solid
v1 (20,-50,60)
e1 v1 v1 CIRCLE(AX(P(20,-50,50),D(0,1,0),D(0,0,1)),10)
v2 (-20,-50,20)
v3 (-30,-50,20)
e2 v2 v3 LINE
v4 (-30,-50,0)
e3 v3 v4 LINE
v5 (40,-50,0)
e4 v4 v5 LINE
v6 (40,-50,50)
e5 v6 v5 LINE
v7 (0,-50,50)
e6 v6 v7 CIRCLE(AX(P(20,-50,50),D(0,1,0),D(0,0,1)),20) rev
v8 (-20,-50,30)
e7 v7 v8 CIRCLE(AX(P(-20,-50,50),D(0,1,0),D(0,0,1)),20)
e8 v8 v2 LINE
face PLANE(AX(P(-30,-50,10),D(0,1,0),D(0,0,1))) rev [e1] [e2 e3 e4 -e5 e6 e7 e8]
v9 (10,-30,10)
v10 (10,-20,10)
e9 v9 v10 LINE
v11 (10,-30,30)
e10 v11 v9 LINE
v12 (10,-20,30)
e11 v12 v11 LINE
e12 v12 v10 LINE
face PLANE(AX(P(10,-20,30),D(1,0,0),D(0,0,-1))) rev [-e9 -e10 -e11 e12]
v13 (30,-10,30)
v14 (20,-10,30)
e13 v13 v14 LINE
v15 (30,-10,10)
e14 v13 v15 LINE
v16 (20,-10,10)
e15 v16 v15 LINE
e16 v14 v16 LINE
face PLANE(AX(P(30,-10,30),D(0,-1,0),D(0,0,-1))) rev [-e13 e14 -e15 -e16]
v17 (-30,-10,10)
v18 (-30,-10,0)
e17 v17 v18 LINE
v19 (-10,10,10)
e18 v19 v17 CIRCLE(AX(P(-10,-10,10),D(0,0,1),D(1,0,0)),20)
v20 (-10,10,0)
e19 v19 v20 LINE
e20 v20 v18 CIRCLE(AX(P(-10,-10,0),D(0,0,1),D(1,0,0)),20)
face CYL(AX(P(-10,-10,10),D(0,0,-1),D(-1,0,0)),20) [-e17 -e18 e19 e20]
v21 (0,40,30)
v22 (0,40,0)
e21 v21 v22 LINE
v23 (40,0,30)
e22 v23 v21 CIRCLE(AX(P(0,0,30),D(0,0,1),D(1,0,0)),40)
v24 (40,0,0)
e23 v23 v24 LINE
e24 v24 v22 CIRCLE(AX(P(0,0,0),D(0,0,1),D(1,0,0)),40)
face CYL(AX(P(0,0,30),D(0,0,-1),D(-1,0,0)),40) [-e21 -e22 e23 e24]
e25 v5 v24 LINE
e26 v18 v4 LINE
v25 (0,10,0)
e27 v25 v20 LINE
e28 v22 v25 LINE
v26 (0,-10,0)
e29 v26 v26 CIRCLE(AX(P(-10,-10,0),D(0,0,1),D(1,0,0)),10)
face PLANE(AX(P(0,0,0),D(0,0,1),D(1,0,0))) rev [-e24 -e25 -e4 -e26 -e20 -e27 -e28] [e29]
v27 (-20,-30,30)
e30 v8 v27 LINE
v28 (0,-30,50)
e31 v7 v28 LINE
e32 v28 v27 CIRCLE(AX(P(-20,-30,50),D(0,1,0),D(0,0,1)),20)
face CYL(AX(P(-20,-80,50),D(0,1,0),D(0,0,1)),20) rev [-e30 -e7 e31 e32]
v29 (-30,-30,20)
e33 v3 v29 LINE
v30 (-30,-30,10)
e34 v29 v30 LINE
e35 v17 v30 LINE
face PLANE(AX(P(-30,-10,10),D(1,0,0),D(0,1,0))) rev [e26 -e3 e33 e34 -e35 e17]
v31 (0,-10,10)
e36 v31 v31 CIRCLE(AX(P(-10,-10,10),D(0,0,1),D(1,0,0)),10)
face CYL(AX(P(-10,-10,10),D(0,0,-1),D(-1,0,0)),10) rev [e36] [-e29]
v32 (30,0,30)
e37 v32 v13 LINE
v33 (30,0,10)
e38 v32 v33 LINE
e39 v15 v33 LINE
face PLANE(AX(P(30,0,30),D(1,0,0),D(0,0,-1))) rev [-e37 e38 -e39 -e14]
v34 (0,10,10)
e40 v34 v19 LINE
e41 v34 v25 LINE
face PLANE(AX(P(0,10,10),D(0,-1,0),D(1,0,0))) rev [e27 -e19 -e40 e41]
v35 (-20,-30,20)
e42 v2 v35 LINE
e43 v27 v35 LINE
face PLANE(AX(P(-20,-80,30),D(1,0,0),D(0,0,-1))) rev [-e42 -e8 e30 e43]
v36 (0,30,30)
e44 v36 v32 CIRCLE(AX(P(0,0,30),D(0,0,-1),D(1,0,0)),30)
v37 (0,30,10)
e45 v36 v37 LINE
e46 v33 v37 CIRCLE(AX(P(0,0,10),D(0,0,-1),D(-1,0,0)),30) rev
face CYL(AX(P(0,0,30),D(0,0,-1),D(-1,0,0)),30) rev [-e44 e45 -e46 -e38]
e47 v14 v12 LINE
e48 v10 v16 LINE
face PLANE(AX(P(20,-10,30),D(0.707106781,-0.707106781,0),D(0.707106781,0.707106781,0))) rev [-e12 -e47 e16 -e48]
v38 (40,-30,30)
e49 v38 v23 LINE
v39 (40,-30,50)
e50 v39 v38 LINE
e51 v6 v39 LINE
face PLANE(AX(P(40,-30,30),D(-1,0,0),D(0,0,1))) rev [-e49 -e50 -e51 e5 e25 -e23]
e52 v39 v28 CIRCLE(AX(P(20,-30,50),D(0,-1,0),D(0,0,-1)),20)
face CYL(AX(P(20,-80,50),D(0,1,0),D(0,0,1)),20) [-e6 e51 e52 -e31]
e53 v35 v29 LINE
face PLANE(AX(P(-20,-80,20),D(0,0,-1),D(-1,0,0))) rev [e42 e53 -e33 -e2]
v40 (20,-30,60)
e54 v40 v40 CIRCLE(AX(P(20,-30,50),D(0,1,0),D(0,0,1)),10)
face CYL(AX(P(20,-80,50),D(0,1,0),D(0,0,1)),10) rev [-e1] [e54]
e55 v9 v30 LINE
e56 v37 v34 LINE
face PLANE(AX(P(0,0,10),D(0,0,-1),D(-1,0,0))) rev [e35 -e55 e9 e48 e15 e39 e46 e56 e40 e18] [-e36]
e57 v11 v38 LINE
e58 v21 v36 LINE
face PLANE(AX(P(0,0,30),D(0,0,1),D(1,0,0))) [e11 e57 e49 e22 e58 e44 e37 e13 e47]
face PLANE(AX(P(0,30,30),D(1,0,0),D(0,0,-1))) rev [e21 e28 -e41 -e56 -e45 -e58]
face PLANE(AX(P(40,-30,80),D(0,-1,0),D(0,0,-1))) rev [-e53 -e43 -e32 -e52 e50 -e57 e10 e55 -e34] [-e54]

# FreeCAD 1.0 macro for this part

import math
import FreeCAD as App
import Part
import Sketcher


def add_polygon(sketch, points):
    """Adds a closed chain of lines whose ends are joined by coincident constraints."""
    first, n = sketch.GeometryCount, len(points)
    for a, b in zip(points, points[1:] + points[:1]):
        sketch.addGeometry(Part.LineSegment(App.Vector(*a, 0), App.Vector(*b, 0)), False)
    for i in range(n):
        sketch.addConstraint(Sketcher.Constraint("Coincident", first + i, 2, first + (i + 1) % n, 1))

doc = App.newDocument("Part")
body = doc.addObject("PartDesign::Body", "Body")

sketch1 = body.newObject("Sketcher::SketchObject", "Sketch")
sketch1.AttachmentSupport = (doc.getObject("XY_Plane"), [""])
sketch1.MapMode = "FlatFace"
sketch1.addGeometry([
    Part.LineSegment(App.Vector(0, 40, 0), App.Vector(0, 30, 0)),
    Part.ArcOfCircle(Part.Circle(App.Vector(0, 0, 0), App.Vector(0, 0, 1), 30), math.radians(0), math.radians(90)),
    Part.LineSegment(App.Vector(30, 0, 0), App.Vector(30, -10, 0)),
    Part.LineSegment(App.Vector(30, -10, 0), App.Vector(20, -10, 0)),
    Part.LineSegment(App.Vector(20, -10, 0), App.Vector(10, -20, 0)),
    Part.LineSegment(App.Vector(10, -20, 0), App.Vector(10, -30, 0)),
    Part.LineSegment(App.Vector(10, -30, 0), App.Vector(40, -30, 0)),
    Part.LineSegment(App.Vector(40, -30, 0), App.Vector(40, 0, 0)),
    Part.ArcOfCircle(Part.Circle(App.Vector(0, 0, 0), App.Vector(0, 0, 1), 40), math.radians(0), math.radians(90)),
], False)
sketch1.addConstraint([
    Sketcher.Constraint("Coincident", 0, 2, 1, 2),
    Sketcher.Constraint("Tangent", 1, 1, 2, 1),
    Sketcher.Constraint("Coincident", 2, 2, 3, 1),
    Sketcher.Constraint("Coincident", 3, 2, 4, 1),
    Sketcher.Constraint("Coincident", 4, 2, 5, 1),
    Sketcher.Constraint("Coincident", 5, 2, 6, 1),
    Sketcher.Constraint("Coincident", 6, 2, 7, 1),
    Sketcher.Constraint("Tangent", 7, 2, 8, 1),
    Sketcher.Constraint("Coincident", 8, 2, 0, 1),
    Sketcher.Constraint("Vertical", 0),
    Sketcher.Constraint("Vertical", 2),
    Sketcher.Constraint("Horizontal", 3),
    Sketcher.Constraint("Vertical", 5),
    Sketcher.Constraint("Horizontal", 6),
    Sketcher.Constraint("Vertical", 7),
    Sketcher.Constraint("Coincident", 1, 3, -1, 1),
    Sketcher.Constraint("Coincident", 8, 3, -1, 1),
    Sketcher.Constraint("PointOnObject", 0, 2, -2),
    Sketcher.Constraint("Equal", 3, 0),
    Sketcher.Constraint("Equal", 0, 2),
    Sketcher.Constraint("Equal", 2, 5),
    Sketcher.Constraint("Equal", 6, 7),
    Sketcher.Constraint("Radius", 1, 30.0),
    Sketcher.Constraint("Radius", 8, 40.0),
    Sketcher.Constraint("DistanceX", 6, 1, 6, 2, 30.0),
])
pad1 = body.newObject("PartDesign::Pad", "Pad")
pad1.Profile = sketch1
pad1.Length = 30

sketch2 = body.newObject("Sketcher::SketchObject", "Sketch001")
sketch2.AttachmentSupport = (doc.getObject("XY_Plane"), [""])
sketch2.MapMode = "FlatFace"
sketch2.addGeometry([
    Part.LineSegment(App.Vector(0, 40, 0), App.Vector(0, 10, 0)),
    Part.LineSegment(App.Vector(0, 10, 0), App.Vector(-10, 10, 0)),
    Part.ArcOfCircle(Part.Circle(App.Vector(-10, -10, 0), App.Vector(0, 0, 1), 20), math.radians(90), math.radians(180)),
    Part.LineSegment(App.Vector(-30, -10, 0), App.Vector(-30, -50, 0)),
    Part.LineSegment(App.Vector(-30, -50, 0), App.Vector(40, -50, 0)),
    Part.LineSegment(App.Vector(40, -50, 0), App.Vector(40, 0, 0)),
    Part.ArcOfCircle(Part.Circle(App.Vector(0, 0, 0), App.Vector(0, 0, 1), 40), math.radians(0), math.radians(90)),
    Part.Circle(App.Vector(-10, -10, 0), App.Vector(0, 0, 1), 10),
], False)
sketch2.addConstraint([
    Sketcher.Constraint("Coincident", 0, 2, 1, 1),
    Sketcher.Constraint("Tangent", 1, 2, 2, 1),
    Sketcher.Constraint("Tangent", 2, 2, 3, 1),
    Sketcher.Constraint("Coincident", 3, 2, 4, 1),
    Sketcher.Constraint("Coincident", 4, 2, 5, 1),
    Sketcher.Constraint("Tangent", 5, 2, 6, 1),
    Sketcher.Constraint("Coincident", 6, 2, 0, 1),
    Sketcher.Constraint("Vertical", 0),
    Sketcher.Constraint("Horizontal", 1),
    Sketcher.Constraint("Vertical", 3),
    Sketcher.Constraint("Horizontal", 4),
    Sketcher.Constraint("Vertical", 5),
    Sketcher.Constraint("Coincident", 6, 3, -1, 1),
    Sketcher.Constraint("Coincident", 7, 3, 2, 3),
    Sketcher.Constraint("PointOnObject", 0, 2, -2),
    Sketcher.Constraint("Diameter", 7, 20.0),
    Sketcher.Constraint("Radius", 2, 20.0),
    Sketcher.Constraint("Radius", 6, 40.0),
    Sketcher.Constraint("DistanceX", 1, 2, 1, 1, 10.0),
    Sketcher.Constraint("DistanceY", 0, 2, 0, 1, 30.0),
    Sketcher.Constraint("DistanceY", 3, 2, 3, 1, 40.0),
])
pad2 = body.newObject("PartDesign::Pad", "Pad001")
pad2.Profile = sketch2
pad2.Length = 10

sketch3 = body.newObject("Sketcher::SketchObject", "Sketch002")
sketch3.AttachmentSupport = (doc.getObject("XY_Plane"), [""])
sketch3.MapMode = "FlatFace"
sketch3.AttachmentOffset = App.Placement(App.Vector(0, 0, 10), App.Rotation())
add_polygon(sketch3, [(-30, -30), (-30, -50), (40, -50), (40, -30)])
sketch3.addConstraint([
    Sketcher.Constraint("Vertical", 0),
    Sketcher.Constraint("Horizontal", 1),
    Sketcher.Constraint("Vertical", 2),
    Sketcher.Constraint("Horizontal", 3),
    Sketcher.Constraint("DistanceX", 1, 1, 1, 2, 70.0),
    Sketcher.Constraint("DistanceY", 0, 2, 0, 1, 20.0),
    Sketcher.Constraint("DistanceX", 0, 2, -1, 1, 30.0),
    Sketcher.Constraint("DistanceY", 0, 2, -1, 1, 50.0),
])
pad3 = body.newObject("PartDesign::Pad", "Pad002")
pad3.Profile = sketch3
pad3.Length = 70

sketch4 = body.newObject("Sketcher::SketchObject", "Sketch003")
sketch4.AttachmentSupport = (doc.getObject("XZ_Plane"), [""])
sketch4.MapMode = "FlatFace"
sketch4.AttachmentOffset = App.Placement(App.Vector(0, 0, 30), App.Rotation())
sketch4.addGeometry([
    Part.LineSegment(App.Vector(-20, 30, 0), App.Vector(-20, 20, 0)),
    Part.LineSegment(App.Vector(-20, 20, 0), App.Vector(-30, 20, 0)),
    Part.LineSegment(App.Vector(-30, 20, 0), App.Vector(-30, 80, 0)),
    Part.LineSegment(App.Vector(-30, 80, 0), App.Vector(40, 80, 0)),
    Part.LineSegment(App.Vector(40, 80, 0), App.Vector(40, 50, 0)),
    Part.ArcOfCircle(Part.Circle(App.Vector(20, 50, 0), App.Vector(0, 0, 1), 20), math.radians(0), math.radians(180)),
    Part.ArcOfCircle(Part.Circle(App.Vector(-20, 50, 0), App.Vector(0, 0, 1), 20), math.radians(-90), math.radians(0)),
], False)
sketch4.addConstraint([
    Sketcher.Constraint("Coincident", 0, 2, 1, 1),
    Sketcher.Constraint("Coincident", 1, 2, 2, 1),
    Sketcher.Constraint("Coincident", 2, 2, 3, 1),
    Sketcher.Constraint("Coincident", 3, 2, 4, 1),
    Sketcher.Constraint("Tangent", 4, 2, 5, 1),
    Sketcher.Constraint("Tangent", 5, 2, 6, 2),
    Sketcher.Constraint("Coincident", 6, 1, 0, 1),
    Sketcher.Constraint("Vertical", 0),
    Sketcher.Constraint("Horizontal", 1),
    Sketcher.Constraint("Vertical", 2),
    Sketcher.Constraint("Horizontal", 3),
    Sketcher.Constraint("Vertical", 4),
    Sketcher.Constraint("Equal", 5, 6),
    Sketcher.Constraint("Symmetric", 5, 3, 6, 3, -2),
    Sketcher.Constraint("Vertical", 6, 3, 0, 2),
    Sketcher.Constraint("Equal", 1, 0),
    Sketcher.Constraint("Radius", 5, 20.0),
    Sketcher.Constraint("DistanceX", 1, 2, 1, 1, 10.0),
    Sketcher.Constraint("DistanceY", 2, 1, 2, 2, 60.0),
    Sketcher.Constraint("DistanceY", -1, 1, 5, 3, 50.0),
])
pocket1 = body.newObject("PartDesign::Pocket", "Pocket")
pocket1.Profile = sketch4
pocket1.Length = 50
pocket1.Reversed = True

sketch5 = body.newObject("Sketcher::SketchObject", "Sketch004")
sketch5.AttachmentSupport = (doc.getObject("XZ_Plane"), [""])
sketch5.MapMode = "FlatFace"
sketch5.AttachmentOffset = App.Placement(App.Vector(0, 0, 30), App.Rotation())
sketch5.addGeometry(Part.Circle(App.Vector(20, 50, 0), App.Vector(0, 0, 1), 10), False)
sketch5.addConstraint([
    Sketcher.Constraint("Diameter", 0, 20.0),
    Sketcher.Constraint("DistanceX", -1, 1, 0, 3, 20.0),
    Sketcher.Constraint("DistanceY", -1, 1, 0, 3, 50.0),
])
pocket2 = body.newObject("PartDesign::Pocket", "Pocket001")
pocket2.Profile = sketch5
pocket2.Length = 50
pocket2.Reversed = True

doc.recompute()
